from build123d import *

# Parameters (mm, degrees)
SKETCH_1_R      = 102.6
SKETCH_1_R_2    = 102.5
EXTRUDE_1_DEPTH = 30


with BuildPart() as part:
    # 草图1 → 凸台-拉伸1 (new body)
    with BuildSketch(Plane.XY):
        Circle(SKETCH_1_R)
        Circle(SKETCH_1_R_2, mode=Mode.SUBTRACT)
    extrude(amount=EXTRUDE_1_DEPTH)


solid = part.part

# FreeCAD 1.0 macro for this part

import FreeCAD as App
import Part
import Sketcher
Q = App.Units.Quantity

doc = App.newDocument("Part")
body = doc.addObject("PartDesign::Body", "Body")

# Sketch on XY plane
sketch1 = body.newObject("Sketcher::SketchObject", "Sketch")
sketch1.AttachmentSupport = (doc.getObject("XY_Plane"), [""])
sketch1.MapMode = "FlatFace"
sketch1.addGeometry(Part.Circle(App.Vector(0, 0, 0), App.Vector(0, 0, 1), 103), False)
sketch1.addGeometry(Part.Circle(App.Vector(0, 0, 0), App.Vector(0, 0, 1), 102), False)
sketch1.addConstraint(Sketcher.Constraint("Coincident", 0, 3, -1, 1))
sketch1.addConstraint(Sketcher.Constraint("Coincident", 1, 3, -1, 1))
sketch1.addConstraint(Sketcher.Constraint("Diameter", 1, Q("205 mm")))
sketch1.addConstraint(Sketcher.Constraint("Diameter", 0, Q("205.2 mm")))
pad1 = body.newObject("PartDesign::Pad", "Pad")
pad1.Profile = sketch1
pad1.Length = 30

doc.recompute()
